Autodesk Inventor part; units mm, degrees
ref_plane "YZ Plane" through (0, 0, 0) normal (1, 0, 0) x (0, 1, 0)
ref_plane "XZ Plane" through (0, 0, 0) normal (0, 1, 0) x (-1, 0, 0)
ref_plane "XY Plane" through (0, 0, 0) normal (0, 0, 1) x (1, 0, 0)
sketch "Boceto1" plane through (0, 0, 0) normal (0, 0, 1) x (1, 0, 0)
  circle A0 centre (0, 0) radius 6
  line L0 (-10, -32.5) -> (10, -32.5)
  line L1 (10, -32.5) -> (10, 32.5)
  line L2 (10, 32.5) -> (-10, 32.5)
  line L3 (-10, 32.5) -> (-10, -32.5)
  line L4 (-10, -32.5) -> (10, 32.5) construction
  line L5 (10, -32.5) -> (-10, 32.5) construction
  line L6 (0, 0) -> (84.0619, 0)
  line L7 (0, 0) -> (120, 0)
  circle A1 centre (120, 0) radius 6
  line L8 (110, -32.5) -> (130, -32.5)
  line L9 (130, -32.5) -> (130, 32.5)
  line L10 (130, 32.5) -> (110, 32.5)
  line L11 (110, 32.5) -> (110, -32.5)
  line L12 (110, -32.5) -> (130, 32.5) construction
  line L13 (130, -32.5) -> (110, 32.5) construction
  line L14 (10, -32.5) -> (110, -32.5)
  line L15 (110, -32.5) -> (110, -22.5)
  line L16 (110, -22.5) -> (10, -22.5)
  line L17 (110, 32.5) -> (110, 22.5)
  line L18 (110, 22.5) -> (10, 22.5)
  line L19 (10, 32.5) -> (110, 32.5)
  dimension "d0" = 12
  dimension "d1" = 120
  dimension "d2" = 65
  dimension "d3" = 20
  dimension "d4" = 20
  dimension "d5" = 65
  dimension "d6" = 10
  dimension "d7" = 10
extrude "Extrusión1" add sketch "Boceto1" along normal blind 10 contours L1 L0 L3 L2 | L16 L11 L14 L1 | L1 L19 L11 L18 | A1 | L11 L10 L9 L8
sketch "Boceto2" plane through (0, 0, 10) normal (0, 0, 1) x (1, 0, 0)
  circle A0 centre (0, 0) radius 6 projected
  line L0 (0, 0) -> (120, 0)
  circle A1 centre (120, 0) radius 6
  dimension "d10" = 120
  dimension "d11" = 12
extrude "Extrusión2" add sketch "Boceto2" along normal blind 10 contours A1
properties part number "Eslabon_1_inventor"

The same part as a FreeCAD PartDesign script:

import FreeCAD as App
import Part
import Sketcher
from FreeCAD import Vector
Q = App.Units.Quantity


def add_polygon(sketch, points):
    """Adds a closed chain of lines whose ends are joined by coincident constraints."""
    first, n = sketch.GeometryCount, len(points)
    for a, b in zip(points, points[1:] + points[:1]):
        sketch.addGeometry(Part.LineSegment(App.Vector(*a, 0), App.Vector(*b, 0)), False)
    for i in range(n):
        sketch.addConstraint(Sketcher.Constraint("Coincident", first + i, 2, first + (i + 1) % n, 1))

doc = App.newDocument("Part")
params = doc.addObject("Spreadsheet::Sheet", "Params")
for row, (alias, value) in enumerate([
    ("sketch1_diameter", "12 mm"),
    ("sketch1_height", "65 mm"),
    ("pad1_length", "10 mm"),
    ("sketch2_diameter", "12 mm"),
    ("pad2_length", "10 mm"),
], start=1):
    params.set(f"A{row}", alias)
    params.set(f"B{row}", "=" + value)
    params.setAlias(f"B{row}", alias)

body = doc.addObject("PartDesign::Body", "Body")

# Sketch on XY plane
sketch1 = body.newObject("Sketcher::SketchObject", "Sketch")
sketch1.AttachmentSupport = (doc.getObject("XY_Plane"), [""])
sketch1.MapMode = "FlatFace"
add_polygon(sketch1, [(-10, -32), (130, -32), (130, 32), (-10, 32)])  # lines 0-3
add_polygon(sketch1, [(10, -22), (10, 0), (10, 22), (110, 22), (110, 0), (110, -22)])  # lines 4-9
sketch1.addGeometry(Part.Circle(Vector(0, 0, 0), Vector(0, 0, 1), 6), False)  # 10
sketch1.addConstraint(Sketcher.Constraint("Horizontal", 0))
sketch1.addConstraint(Sketcher.Constraint("Vertical", 1))
sketch1.addConstraint(Sketcher.Constraint("Horizontal", 2))
sketch1.addConstraint(Sketcher.Constraint("Vertical", 3))
sketch1.addConstraint(Sketcher.Constraint("Vertical", 4))
sketch1.addConstraint(Sketcher.Constraint("Vertical", 5))
sketch1.addConstraint(Sketcher.Constraint("Horizontal", 6))
sketch1.addConstraint(Sketcher.Constraint("Vertical", 7))
sketch1.addConstraint(Sketcher.Constraint("Vertical", 8))
sketch1.addConstraint(Sketcher.Constraint("Horizontal", 9))
sketch1.addConstraint(Sketcher.Constraint("Coincident", 10, 3, -1, 1))
sketch1.addConstraint(Sketcher.Constraint("PointOnObject", 4, 2, -1))
sketch1.addConstraint(Sketcher.Constraint("PointOnObject", 7, 2, -1))
sketch1.addConstraint(Sketcher.Constraint("Equal", 4, 5))
sketch1.addConstraint(Sketcher.Constraint("Diameter", 10, Q("12 mm")))
sketch1.addConstraint(Sketcher.Constraint("DistanceY", 1, 1, 1, 2, Q("65 mm")))
sketch1.addConstraint(Sketcher.Constraint("DistanceX", 2, 2, -1, 1, Q("10 mm")))
sketch1.addConstraint(Sketcher.Constraint("DistanceX", -1, 1, 4, 2, Q("10 mm")))
sketch1.addConstraint(Sketcher.Constraint("DistanceX", 4, 2, 0, 2, Q("120 mm")))
sketch1.addConstraint(Sketcher.Constraint("DistanceY", 5, 2, 2, 2, Q("10 mm")))
sketch1.addConstraint(Sketcher.Constraint("DistanceX", 6, 2, 1, 2, Q("20 mm")))
sketch1.addConstraint(Sketcher.Constraint("DistanceY", 0, 2, 8, 2, Q("10 mm")))
sketch1.setExpression("Constraints[24]", "Params.sketch1_diameter")
sketch1.setExpression("Constraints[25]", "Params.sketch1_height")
pad1 = body.newObject("PartDesign::Pad", "Pad")
pad1.Profile = sketch1
pad1.setExpression("Length", "Params.pad1_length")

# Sketch on XY plane
sketch2 = body.newObject("Sketcher::SketchObject", "Sketch001")
sketch2.AttachmentSupport = (doc.getObject("XY_Plane"), [""])
sketch2.MapMode = "FlatFace"
sketch2.AttachmentOffset = App.Placement(Vector(0, 0, 10), App.Rotation())
sketch2.addGeometry(Part.Circle(Vector(120, 0, 0), Vector(0, 0, 1), 6), False)
sketch2.addConstraint(Sketcher.Constraint("PointOnObject", 0, 3, -1))
sketch2.addConstraint(Sketcher.Constraint("Diameter", 0, Q("12 mm")))
sketch2.addConstraint(Sketcher.Constraint("DistanceX", -1, 1, 0, 3, Q("120 mm")))
sketch2.setExpression("Constraints[1]", "Params.sketch2_diameter")
pad2 = body.newObject("PartDesign::Pad", "Pad001")
pad2.Profile = sketch2
pad2.setExpression("Length", "Params.pad2_length")

doc.recompute()
